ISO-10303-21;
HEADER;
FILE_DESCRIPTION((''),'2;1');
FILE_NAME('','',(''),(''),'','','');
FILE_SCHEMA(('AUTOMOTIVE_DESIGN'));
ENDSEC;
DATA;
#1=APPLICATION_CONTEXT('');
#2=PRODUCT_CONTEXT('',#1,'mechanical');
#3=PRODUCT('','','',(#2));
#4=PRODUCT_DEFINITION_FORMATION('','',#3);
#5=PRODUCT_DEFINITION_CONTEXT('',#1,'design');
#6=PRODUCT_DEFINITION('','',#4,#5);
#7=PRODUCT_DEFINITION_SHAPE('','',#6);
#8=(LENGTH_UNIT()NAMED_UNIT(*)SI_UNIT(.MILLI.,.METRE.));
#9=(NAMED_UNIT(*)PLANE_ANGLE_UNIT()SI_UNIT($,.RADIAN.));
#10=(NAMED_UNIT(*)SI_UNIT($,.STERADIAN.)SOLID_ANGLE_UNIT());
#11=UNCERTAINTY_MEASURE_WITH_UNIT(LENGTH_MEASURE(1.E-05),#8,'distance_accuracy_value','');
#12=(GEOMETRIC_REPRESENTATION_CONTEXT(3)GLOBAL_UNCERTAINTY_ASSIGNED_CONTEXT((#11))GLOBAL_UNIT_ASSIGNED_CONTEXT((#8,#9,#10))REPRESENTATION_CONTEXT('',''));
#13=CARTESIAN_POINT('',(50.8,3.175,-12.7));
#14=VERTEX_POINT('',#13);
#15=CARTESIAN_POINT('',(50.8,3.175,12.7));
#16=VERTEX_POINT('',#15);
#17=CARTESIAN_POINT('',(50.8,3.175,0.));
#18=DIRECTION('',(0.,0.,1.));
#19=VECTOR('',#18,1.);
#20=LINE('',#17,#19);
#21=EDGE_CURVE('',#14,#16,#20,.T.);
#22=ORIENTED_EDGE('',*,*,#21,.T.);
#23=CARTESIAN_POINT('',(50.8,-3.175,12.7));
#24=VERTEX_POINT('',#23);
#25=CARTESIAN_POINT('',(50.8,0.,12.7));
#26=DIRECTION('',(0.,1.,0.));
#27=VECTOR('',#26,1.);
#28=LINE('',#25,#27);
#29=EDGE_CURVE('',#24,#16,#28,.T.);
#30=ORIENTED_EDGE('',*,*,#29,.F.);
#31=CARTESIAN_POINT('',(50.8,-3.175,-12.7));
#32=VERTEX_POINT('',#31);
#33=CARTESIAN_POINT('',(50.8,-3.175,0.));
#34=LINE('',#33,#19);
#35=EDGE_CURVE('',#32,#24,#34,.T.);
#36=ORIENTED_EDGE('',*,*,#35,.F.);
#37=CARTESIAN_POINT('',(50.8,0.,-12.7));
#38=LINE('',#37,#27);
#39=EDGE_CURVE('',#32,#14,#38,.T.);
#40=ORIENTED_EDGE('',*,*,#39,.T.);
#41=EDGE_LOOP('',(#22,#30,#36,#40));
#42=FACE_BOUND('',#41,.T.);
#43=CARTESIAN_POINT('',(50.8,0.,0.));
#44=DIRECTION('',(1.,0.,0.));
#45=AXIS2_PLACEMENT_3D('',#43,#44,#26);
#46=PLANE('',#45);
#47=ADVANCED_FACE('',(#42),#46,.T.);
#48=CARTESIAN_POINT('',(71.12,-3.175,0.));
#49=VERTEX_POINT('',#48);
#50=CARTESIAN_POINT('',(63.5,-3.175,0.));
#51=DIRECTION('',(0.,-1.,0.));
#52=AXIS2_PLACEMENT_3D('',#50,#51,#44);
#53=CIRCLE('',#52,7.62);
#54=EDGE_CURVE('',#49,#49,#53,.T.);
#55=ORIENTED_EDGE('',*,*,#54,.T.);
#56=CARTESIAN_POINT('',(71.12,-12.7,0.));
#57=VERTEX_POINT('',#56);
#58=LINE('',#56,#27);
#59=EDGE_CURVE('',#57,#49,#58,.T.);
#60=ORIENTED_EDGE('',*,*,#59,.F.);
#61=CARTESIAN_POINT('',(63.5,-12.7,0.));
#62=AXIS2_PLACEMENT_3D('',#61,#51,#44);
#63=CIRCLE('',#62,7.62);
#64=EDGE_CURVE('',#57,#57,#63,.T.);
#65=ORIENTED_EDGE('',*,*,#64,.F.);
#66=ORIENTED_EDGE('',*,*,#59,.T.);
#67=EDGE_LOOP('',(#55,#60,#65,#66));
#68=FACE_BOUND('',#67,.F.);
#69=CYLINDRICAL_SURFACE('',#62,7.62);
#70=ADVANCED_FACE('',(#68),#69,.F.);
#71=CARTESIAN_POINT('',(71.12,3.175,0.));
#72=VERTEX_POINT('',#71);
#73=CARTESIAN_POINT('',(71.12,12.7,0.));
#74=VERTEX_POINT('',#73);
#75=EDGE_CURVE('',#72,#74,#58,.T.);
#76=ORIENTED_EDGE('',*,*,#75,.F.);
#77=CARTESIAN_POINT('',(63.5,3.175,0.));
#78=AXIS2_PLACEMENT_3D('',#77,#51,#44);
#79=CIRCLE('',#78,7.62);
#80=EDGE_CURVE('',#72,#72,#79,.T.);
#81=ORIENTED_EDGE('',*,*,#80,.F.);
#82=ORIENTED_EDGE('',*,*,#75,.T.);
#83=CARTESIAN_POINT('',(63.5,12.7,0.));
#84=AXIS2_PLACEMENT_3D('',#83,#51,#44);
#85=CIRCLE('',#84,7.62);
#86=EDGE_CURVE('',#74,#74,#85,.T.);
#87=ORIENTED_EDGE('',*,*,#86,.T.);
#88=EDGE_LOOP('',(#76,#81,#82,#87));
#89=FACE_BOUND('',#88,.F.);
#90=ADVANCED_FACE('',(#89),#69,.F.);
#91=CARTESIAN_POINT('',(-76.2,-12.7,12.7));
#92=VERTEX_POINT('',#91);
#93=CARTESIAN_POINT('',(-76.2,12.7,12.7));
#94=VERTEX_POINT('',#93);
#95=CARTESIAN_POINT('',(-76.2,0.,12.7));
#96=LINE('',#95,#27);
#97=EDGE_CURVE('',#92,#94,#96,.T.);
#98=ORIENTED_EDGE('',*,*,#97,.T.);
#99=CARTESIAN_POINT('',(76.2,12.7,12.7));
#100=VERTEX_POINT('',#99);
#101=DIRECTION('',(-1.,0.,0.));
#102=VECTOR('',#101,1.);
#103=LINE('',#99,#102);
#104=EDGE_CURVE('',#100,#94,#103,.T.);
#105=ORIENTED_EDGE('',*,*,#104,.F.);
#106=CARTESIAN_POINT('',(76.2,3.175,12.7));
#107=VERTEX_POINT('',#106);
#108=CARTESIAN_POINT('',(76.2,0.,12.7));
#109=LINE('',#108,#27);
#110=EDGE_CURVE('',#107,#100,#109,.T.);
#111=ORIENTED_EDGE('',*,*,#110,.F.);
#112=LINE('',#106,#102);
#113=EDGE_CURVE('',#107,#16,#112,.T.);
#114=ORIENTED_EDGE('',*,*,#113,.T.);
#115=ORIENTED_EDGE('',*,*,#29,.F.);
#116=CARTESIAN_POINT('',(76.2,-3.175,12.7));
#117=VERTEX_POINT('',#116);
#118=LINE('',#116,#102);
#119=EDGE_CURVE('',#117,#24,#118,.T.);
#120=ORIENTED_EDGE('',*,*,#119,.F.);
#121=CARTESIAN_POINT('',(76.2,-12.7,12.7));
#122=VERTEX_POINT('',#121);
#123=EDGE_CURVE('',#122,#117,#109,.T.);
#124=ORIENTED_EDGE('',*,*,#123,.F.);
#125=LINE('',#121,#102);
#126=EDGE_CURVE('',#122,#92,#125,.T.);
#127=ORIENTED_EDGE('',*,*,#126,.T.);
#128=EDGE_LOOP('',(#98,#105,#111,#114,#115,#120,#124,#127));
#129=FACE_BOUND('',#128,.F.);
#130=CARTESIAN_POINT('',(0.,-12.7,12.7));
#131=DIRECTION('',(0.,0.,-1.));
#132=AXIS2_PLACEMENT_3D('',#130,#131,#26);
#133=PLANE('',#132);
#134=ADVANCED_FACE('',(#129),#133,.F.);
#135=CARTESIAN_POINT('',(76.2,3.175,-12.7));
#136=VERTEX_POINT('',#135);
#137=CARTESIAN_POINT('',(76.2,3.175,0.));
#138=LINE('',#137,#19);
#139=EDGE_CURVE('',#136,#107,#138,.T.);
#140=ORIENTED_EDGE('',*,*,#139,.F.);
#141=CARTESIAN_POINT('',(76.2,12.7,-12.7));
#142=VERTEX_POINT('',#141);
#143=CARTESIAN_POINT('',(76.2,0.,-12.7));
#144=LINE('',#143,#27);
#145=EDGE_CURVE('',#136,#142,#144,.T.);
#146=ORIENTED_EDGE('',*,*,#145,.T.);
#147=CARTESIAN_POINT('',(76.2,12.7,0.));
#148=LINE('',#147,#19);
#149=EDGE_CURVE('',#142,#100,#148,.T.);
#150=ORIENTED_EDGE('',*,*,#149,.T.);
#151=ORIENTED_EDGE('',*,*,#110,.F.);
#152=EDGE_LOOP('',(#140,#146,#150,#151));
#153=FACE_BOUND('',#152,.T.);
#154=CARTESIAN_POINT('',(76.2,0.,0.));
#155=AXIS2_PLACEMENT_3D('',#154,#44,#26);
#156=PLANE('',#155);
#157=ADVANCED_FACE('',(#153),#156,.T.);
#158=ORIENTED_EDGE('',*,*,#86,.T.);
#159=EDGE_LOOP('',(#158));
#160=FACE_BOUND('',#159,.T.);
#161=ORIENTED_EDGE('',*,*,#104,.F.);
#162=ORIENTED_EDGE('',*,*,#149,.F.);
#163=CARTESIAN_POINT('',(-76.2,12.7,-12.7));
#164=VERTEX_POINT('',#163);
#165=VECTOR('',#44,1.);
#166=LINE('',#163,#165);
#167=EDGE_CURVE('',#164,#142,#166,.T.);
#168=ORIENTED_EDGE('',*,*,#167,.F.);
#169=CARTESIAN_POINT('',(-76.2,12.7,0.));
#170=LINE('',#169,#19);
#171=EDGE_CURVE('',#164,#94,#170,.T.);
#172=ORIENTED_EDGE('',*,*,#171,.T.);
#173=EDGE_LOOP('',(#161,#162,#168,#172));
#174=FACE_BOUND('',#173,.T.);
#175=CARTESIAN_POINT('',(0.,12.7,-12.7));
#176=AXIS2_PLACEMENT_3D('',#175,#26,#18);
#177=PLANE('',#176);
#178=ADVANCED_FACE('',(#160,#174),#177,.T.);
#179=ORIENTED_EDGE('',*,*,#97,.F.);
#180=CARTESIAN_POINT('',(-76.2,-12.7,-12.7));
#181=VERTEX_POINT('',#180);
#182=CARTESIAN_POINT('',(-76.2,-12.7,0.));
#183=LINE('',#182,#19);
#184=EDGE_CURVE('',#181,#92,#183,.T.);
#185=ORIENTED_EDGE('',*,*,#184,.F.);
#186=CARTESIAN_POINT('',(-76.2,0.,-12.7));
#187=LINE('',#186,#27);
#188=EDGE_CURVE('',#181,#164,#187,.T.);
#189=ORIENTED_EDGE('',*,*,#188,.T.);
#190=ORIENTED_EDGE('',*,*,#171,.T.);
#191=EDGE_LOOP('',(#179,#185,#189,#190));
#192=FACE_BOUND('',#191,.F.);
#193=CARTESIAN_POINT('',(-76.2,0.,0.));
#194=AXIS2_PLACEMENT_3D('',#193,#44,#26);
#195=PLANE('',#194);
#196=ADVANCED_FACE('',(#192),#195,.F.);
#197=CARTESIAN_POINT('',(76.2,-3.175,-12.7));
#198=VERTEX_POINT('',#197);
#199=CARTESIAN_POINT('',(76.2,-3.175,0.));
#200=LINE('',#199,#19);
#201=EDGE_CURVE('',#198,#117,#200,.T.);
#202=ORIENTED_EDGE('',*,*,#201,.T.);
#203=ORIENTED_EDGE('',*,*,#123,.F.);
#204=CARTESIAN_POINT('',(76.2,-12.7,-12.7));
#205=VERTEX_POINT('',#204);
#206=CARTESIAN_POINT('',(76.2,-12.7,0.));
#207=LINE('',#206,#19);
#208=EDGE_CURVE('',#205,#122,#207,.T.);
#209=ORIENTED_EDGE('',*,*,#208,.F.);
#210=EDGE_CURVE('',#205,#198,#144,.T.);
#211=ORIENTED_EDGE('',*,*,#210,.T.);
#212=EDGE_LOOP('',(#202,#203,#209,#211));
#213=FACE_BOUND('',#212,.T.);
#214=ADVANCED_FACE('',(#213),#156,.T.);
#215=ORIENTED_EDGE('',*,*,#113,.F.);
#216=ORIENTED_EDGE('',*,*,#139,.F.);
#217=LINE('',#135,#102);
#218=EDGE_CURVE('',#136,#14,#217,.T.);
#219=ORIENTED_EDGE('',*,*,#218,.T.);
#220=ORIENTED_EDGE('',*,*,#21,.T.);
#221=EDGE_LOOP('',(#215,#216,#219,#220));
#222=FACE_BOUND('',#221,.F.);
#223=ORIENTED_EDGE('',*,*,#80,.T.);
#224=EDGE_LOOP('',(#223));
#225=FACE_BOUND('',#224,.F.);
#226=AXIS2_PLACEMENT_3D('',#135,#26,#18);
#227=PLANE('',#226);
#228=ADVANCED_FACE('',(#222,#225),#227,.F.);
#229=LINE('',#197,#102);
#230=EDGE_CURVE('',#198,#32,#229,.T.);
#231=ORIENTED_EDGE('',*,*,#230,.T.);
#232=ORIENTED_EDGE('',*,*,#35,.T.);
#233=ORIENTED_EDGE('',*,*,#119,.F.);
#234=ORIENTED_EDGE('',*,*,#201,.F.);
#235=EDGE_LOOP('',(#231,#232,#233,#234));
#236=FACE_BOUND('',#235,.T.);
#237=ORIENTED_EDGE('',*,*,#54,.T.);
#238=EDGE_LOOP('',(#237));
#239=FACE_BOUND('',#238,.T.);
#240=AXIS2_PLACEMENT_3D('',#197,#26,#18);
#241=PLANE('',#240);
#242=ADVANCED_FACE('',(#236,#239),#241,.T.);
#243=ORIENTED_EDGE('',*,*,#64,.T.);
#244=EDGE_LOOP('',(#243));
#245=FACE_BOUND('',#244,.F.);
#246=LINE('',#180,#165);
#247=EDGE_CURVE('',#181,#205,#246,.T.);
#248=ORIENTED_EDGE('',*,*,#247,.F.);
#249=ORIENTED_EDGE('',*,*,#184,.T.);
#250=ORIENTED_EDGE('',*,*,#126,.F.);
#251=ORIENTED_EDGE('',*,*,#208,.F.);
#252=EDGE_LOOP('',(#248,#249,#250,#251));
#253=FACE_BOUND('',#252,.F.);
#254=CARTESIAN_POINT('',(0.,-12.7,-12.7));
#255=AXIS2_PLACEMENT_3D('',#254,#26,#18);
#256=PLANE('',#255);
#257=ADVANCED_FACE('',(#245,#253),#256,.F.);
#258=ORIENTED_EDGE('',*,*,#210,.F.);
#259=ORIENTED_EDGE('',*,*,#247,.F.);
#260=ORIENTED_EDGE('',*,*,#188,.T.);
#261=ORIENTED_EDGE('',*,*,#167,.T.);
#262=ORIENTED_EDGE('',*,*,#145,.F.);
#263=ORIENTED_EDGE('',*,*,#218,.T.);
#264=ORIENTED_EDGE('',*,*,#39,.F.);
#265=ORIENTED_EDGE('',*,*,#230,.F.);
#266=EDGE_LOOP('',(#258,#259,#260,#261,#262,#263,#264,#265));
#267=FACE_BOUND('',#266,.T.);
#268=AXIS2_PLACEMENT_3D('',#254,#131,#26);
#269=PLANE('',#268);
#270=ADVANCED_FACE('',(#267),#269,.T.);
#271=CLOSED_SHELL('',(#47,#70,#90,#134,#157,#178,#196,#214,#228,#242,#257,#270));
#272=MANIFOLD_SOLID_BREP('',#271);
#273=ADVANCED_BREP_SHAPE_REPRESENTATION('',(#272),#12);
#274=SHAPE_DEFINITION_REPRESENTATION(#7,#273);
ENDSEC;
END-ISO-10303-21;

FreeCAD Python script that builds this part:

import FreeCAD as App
import Part
import Sketcher
Q = App.Units.Quantity

doc = App.newDocument("Part")
params = doc.addObject("Spreadsheet::Sheet", "Params")
for row, (alias, value) in enumerate([
    ("sketch1_width", "1 in"),
    ("pad1_length", "6 in"),
    ("sketch2_diameter", "0.6 in"),
    ("sketch3_height", "1 in"),
    ("sketch3_width", "0.25 in"),
    ("pocket2_length", "1 in"),
], start=1):
    params.set(f"A{row}", alias)
    params.set(f"B{row}", "=" + value)
    params.setAlias(f"B{row}", alias)

body = doc.addObject("PartDesign::Body", "Body")

# Sketch on YZ plane
sketch1 = body.newObject("Sketcher::SketchObject", "Sketch")
sketch1.AttachmentSupport = (doc.getObject("YZ_Plane"), [""])
sketch1.MapMode = "FlatFace"
sketch1.addGeometry([
    Part.LineSegment(App.Vector(-13, 13, 0), App.Vector(-13, -13, 0)),
    Part.LineSegment(App.Vector(-13, -13, 0), App.Vector(13, -13, 0)),
    Part.LineSegment(App.Vector(13, -13, 0), App.Vector(13, 13, 0)),
    Part.LineSegment(App.Vector(13, 13, 0), App.Vector(-13, 13, 0)),
], False)
sketch1.addConstraint([
    Sketcher.Constraint("Coincident", 0, 2, 1, 1),
    Sketcher.Constraint("Coincident", 1, 2, 2, 1),
    Sketcher.Constraint("Coincident", 2, 2, 3, 1),
    Sketcher.Constraint("Coincident", 3, 2, 0, 1),
    Sketcher.Constraint("Vertical", 0),
    Sketcher.Constraint("Horizontal", 1),
    Sketcher.Constraint("Vertical", 2),
    Sketcher.Constraint("Horizontal", 3),
    Sketcher.Constraint("Symmetric", 0, 2, 2, 2, -1, 1),
    Sketcher.Constraint("Equal", 3, 0),
    Sketcher.Constraint("DistanceX", 1, 1, 1, 2, Q("1 in")),
])
sketch1.setExpression("Constraints[10]", "Params.sketch1_width")
pad1 = body.newObject("PartDesign::Pad", "Pad")
pad1.Profile = sketch1
pad1.setExpression("Length", "Params.pad1_length")
pad1.Midplane = True

# Sketch on XZ plane
sketch2 = body.newObject("Sketcher::SketchObject", "Sketch001")
sketch2.AttachmentSupport = (doc.getObject("XZ_Plane"), [""])
sketch2.MapMode = "FlatFace"
sketch2.AttachmentOffset = App.Placement(App.Vector(0, 0, 0.5 * 25.4), App.Rotation())
sketch2.addGeometry(Part.Circle(App.Vector(64, 0, 0), App.Vector(0, 0, 1), 8), False)
sketch2.addConstraint([
    Sketcher.Constraint("PointOnObject", 0, 3, -1),
    Sketcher.Constraint("Diameter", 0, Q("0.6 in")),
    Sketcher.Constraint("DistanceX", -1, 1, 0, 3, Q("2.5 in")),
])
sketch2.setExpression("Constraints[1]", "Params.sketch2_diameter")
pocket1 = body.newObject("PartDesign::Pocket", "Pocket")
pocket1.Profile = sketch2
pocket1.Type = "ThroughAll"

# Sketch on YZ plane
sketch3 = body.newObject("Sketcher::SketchObject", "Sketch002")
sketch3.AttachmentSupport = (doc.getObject("YZ_Plane"), [""])
sketch3.MapMode = "FlatFace"
sketch3.AttachmentOffset = App.Placement(App.Vector(0, 0, 3 * 25.4), App.Rotation())
sketch3.addGeometry([
    Part.LineSegment(App.Vector(-3, 13, 0), App.Vector(-3, -13, 0)),
    Part.LineSegment(App.Vector(-3, -13, 0), App.Vector(3, -13, 0)),
    Part.LineSegment(App.Vector(3, -13, 0), App.Vector(3, 13, 0)),
    Part.LineSegment(App.Vector(3, 13, 0), App.Vector(-3, 13, 0)),
], False)
sketch3.addConstraint([
    Sketcher.Constraint("Coincident", 0, 2, 1, 1),
    Sketcher.Constraint("Coincident", 1, 2, 2, 1),
    Sketcher.Constraint("Coincident", 2, 2, 3, 1),
    Sketcher.Constraint("Coincident", 3, 2, 0, 1),
    Sketcher.Constraint("Vertical", 0),
    Sketcher.Constraint("Horizontal", 1),
    Sketcher.Constraint("Vertical", 2),
    Sketcher.Constraint("Horizontal", 3),
    Sketcher.Constraint("Symmetric", 0, 2, 2, 2, -1, 1),
    Sketcher.Constraint("DistanceY", 0, 2, 0, 1, Q("1 in")),
    Sketcher.Constraint("DistanceX", 1, 1, 1, 2, Q("0.25 in")),
])
sketch3.setExpression("Constraints[9]", "Params.sketch3_height")
sketch3.setExpression("Constraints[10]", "Params.sketch3_width")
pocket2 = body.newObject("PartDesign::Pocket", "Pocket001")
pocket2.Profile = sketch3
pocket2.setExpression("Length", "Params.pocket2_length")

doc.recompute()
